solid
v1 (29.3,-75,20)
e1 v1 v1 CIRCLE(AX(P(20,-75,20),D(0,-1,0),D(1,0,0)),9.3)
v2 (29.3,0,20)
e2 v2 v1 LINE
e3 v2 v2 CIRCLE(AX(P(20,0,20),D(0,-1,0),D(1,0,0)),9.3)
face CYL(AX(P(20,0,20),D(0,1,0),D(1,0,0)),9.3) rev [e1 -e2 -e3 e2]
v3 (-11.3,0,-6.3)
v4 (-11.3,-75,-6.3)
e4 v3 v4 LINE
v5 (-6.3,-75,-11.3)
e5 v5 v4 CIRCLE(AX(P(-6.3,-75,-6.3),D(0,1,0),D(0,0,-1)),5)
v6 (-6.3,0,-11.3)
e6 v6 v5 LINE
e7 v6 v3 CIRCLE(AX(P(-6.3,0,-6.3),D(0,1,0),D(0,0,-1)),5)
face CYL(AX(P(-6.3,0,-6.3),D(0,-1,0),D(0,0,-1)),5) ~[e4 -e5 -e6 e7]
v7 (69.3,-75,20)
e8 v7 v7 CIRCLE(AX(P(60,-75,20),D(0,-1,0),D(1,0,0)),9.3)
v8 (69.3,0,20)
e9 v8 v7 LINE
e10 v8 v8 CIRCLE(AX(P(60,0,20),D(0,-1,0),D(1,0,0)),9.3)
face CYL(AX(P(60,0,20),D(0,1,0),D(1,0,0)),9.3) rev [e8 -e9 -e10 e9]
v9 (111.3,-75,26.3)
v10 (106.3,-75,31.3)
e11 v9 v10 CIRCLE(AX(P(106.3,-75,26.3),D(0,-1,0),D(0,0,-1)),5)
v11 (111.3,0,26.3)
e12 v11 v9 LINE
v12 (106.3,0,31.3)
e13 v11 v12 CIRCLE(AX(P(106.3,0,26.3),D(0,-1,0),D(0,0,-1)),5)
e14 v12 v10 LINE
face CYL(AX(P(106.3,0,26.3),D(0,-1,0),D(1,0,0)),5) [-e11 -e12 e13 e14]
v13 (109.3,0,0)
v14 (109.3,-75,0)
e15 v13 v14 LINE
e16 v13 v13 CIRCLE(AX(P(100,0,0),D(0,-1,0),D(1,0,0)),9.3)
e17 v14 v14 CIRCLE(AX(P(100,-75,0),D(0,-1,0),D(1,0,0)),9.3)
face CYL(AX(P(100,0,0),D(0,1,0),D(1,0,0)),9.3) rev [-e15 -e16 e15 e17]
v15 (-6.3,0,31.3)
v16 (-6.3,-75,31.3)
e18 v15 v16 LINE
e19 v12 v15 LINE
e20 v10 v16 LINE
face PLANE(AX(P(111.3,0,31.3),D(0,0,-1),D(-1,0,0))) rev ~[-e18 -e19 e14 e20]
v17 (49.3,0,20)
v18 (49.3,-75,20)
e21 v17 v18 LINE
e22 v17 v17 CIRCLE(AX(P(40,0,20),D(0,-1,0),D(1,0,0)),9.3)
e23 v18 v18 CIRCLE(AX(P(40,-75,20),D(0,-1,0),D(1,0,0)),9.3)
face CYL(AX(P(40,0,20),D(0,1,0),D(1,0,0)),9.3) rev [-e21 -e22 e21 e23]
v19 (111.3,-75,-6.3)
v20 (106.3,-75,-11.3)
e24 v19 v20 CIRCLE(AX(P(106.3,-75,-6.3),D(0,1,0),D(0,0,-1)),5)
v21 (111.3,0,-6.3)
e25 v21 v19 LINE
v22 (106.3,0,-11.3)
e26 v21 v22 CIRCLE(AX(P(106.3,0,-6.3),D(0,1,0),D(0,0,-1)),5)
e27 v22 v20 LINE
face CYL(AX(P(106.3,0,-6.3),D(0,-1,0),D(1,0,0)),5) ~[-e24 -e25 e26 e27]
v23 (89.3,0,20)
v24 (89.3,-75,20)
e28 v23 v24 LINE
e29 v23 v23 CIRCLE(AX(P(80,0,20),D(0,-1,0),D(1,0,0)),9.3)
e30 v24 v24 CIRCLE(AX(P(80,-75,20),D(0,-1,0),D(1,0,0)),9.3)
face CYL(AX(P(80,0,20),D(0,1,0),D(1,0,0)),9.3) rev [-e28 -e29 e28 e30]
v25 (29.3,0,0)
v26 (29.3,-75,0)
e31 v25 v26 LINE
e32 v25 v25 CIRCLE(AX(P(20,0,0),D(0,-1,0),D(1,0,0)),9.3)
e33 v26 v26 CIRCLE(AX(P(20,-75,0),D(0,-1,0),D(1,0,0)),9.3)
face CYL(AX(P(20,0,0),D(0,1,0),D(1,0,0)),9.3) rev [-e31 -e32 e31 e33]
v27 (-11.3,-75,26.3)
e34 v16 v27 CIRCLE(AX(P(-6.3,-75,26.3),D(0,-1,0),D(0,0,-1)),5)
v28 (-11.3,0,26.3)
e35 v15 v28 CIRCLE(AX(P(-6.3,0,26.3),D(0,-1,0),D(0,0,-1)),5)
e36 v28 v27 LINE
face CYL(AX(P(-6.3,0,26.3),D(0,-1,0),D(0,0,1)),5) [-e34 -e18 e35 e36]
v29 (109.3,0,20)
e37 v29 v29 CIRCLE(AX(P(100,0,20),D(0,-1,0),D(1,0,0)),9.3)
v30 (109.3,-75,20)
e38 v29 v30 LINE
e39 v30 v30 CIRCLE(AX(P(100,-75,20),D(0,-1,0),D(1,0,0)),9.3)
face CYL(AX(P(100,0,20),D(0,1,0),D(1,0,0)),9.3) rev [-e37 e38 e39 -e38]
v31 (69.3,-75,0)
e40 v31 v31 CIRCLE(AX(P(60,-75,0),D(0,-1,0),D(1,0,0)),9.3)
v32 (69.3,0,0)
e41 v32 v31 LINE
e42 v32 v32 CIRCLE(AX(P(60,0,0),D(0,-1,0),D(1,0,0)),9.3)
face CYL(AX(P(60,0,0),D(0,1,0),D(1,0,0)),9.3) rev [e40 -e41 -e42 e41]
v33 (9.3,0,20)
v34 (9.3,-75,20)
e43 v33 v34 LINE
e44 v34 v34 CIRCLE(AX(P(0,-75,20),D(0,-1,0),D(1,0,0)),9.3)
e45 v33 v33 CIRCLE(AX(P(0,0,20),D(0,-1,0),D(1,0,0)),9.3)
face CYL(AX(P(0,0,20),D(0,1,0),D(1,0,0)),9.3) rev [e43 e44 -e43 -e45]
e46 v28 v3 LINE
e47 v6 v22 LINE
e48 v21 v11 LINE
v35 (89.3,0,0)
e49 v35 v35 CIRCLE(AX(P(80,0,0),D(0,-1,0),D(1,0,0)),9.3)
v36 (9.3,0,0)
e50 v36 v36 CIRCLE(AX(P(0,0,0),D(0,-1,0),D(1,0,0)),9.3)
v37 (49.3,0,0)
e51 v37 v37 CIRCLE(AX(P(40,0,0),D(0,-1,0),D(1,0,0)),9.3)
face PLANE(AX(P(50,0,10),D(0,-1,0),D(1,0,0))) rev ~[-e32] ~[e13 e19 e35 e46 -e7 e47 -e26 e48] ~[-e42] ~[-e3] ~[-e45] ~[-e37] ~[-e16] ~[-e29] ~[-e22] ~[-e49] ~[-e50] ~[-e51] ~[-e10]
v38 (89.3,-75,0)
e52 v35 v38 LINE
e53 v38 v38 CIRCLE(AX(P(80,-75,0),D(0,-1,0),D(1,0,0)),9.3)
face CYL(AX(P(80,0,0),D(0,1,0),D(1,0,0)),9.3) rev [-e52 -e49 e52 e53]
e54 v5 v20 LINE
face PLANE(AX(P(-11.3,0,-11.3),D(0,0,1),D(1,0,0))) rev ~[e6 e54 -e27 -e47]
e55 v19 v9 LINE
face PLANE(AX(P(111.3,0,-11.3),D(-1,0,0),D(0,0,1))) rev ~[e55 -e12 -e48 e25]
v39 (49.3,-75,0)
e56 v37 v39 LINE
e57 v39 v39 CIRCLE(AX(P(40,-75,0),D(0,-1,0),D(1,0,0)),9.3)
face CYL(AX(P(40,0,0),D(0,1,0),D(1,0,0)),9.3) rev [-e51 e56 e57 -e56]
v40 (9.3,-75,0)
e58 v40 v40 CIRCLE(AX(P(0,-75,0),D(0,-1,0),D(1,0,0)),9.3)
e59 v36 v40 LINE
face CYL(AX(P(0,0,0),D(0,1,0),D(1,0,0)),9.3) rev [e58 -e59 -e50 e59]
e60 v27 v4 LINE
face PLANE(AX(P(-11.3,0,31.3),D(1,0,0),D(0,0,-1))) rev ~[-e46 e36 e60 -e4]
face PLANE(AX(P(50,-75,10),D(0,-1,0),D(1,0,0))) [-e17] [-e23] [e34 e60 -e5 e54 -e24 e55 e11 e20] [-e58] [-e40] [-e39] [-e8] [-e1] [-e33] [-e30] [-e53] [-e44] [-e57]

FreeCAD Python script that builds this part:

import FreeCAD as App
import Part
import Sketcher
from FreeCAD import Vector


def edges_at(feature, points):
    """Names of the edges that pass closest to the given points."""
    edges = feature.Shape.Edges
    near = lambda p: min(range(len(edges)), key=lambda i: edges[i].distToShape(Part.Vertex(*p))[0])
    return sorted({f"Edge{near(p) + 1}" for p in points})

doc = App.newDocument("Part")
params = doc.addObject("Spreadsheet::Sheet", "Params")
for row, (alias, value) in enumerate([
    ("sketch1_diameter", "18.6 mm"),
    ("sketch1_width", "122.6 mm"),
    ("sketch1_height", "42.6 mm"),
    ("pad1_length", "75 mm"),
    ("fillet_radius", "5 mm"),
], start=1):
    params.set(f"A{row}", alias)
    params.set(f"B{row}", "=" + value)
    params.setAlias(f"B{row}", alias)

body = doc.addObject("PartDesign::Body", "Body")

sketch1 = doc.addObject("Sketcher::SketchObject", "Sketch")
body.addObject(sketch1)
sketch1.AttachmentSupport = (doc.XZ_Plane, [""])
sketch1.MapMode = "FlatFace"
sketch1.addGeometry(Part.LineSegment(Vector(111, -11, 0), Vector(111, 31, 0)), False)
sketch1.addGeometry(Part.LineSegment(Vector(111, 31, 0), Vector(-11, 31, 0)), False)
sketch1.addGeometry(Part.LineSegment(Vector(-11, 31, 0), Vector(-11, -11, 0)), False)
sketch1.addGeometry(Part.LineSegment(Vector(-11, -11, 0), Vector(111, -11, 0)), False)
sketch1.addGeometry(Part.Circle(Vector(0, 0, 0), Vector(0, 0, 1), 9), False)
sketch1.addGeometry(Part.Circle(Vector(20, 0, 0), Vector(0, 0, 1), 9), False)
sketch1.addGeometry(Part.Circle(Vector(40, 0, 0), Vector(0, 0, 1), 9), False)
sketch1.addGeometry(Part.Circle(Vector(60, 0, 0), Vector(0, 0, 1), 9), False)
sketch1.addGeometry(Part.Circle(Vector(80, 0, 0), Vector(0, 0, 1), 9), False)
sketch1.addGeometry(Part.Circle(Vector(100, 0, 0), Vector(0, 0, 1), 9), False)
sketch1.addGeometry(Part.Circle(Vector(0, 20, 0), Vector(0, 0, 1), 9), False)
sketch1.addGeometry(Part.Circle(Vector(20, 20, 0), Vector(0, 0, 1), 9), False)
sketch1.addGeometry(Part.Circle(Vector(40, 20, 0), Vector(0, 0, 1), 9), False)
sketch1.addGeometry(Part.Circle(Vector(60, 20, 0), Vector(0, 0, 1), 9), False)
sketch1.addGeometry(Part.Circle(Vector(80, 20, 0), Vector(0, 0, 1), 9), False)
sketch1.addGeometry(Part.Circle(Vector(100, 20, 0), Vector(0, 0, 1), 9), False)
sketch1.addConstraint(Sketcher.Constraint("Coincident", 0, 2, 1, 1))
sketch1.addConstraint(Sketcher.Constraint("Coincident", 1, 2, 2, 1))
sketch1.addConstraint(Sketcher.Constraint("Coincident", 2, 2, 3, 1))
sketch1.addConstraint(Sketcher.Constraint("Coincident", 3, 2, 0, 1))
sketch1.addConstraint(Sketcher.Constraint("Vertical", 0))
sketch1.addConstraint(Sketcher.Constraint("Horizontal", 1))
sketch1.addConstraint(Sketcher.Constraint("Vertical", 2))
sketch1.addConstraint(Sketcher.Constraint("Horizontal", 3))
sketch1.addConstraint(Sketcher.Constraint("Coincident", 4, 3, -1, 1))
sketch1.addConstraint(Sketcher.Constraint("Equal", 4, 5))
sketch1.addConstraint(Sketcher.Constraint("Equal", 5, 6))
sketch1.addConstraint(Sketcher.Constraint("Equal", 6, 7))
sketch1.addConstraint(Sketcher.Constraint("Equal", 7, 8))
sketch1.addConstraint(Sketcher.Constraint("Equal", 8, 9))
sketch1.addConstraint(Sketcher.Constraint("Equal", 9, 10))
sketch1.addConstraint(Sketcher.Constraint("Equal", 10, 11))
sketch1.addConstraint(Sketcher.Constraint("Equal", 11, 12))
sketch1.addConstraint(Sketcher.Constraint("Equal", 12, 13))
sketch1.addConstraint(Sketcher.Constraint("Equal", 13, 14))
sketch1.addConstraint(Sketcher.Constraint("Equal", 14, 15))
sketch1.addConstraint(Sketcher.Constraint("PointOnObject", 5, 3, -1))
sketch1.addConstraint(Sketcher.Constraint("PointOnObject", 6, 3, -1))
sketch1.addConstraint(Sketcher.Constraint("PointOnObject", 7, 3, -1))
sketch1.addConstraint(Sketcher.Constraint("PointOnObject", 8, 3, -1))
sketch1.addConstraint(Sketcher.Constraint("PointOnObject", 9, 3, -1))
sketch1.addConstraint(Sketcher.Constraint("PointOnObject", 10, 3, -2))
sketch1.addConstraint(Sketcher.Constraint("Horizontal", 10, 3, 11, 3))
sketch1.addConstraint(Sketcher.Constraint("Horizontal", 11, 3, 12, 3))
sketch1.addConstraint(Sketcher.Constraint("Horizontal", 12, 3, 13, 3))
sketch1.addConstraint(Sketcher.Constraint("Horizontal", 13, 3, 14, 3))
sketch1.addConstraint(Sketcher.Constraint("Horizontal", 14, 3, 15, 3))
sketch1.addConstraint(Sketcher.Constraint("Vertical", 5, 3, 11, 3))
sketch1.addConstraint(Sketcher.Constraint("Vertical", 6, 3, 12, 3))
sketch1.addConstraint(Sketcher.Constraint("Vertical", 7, 3, 13, 3))
sketch1.addConstraint(Sketcher.Constraint("Vertical", 8, 3, 14, 3))
sketch1.addConstraint(Sketcher.Constraint("Vertical", 9, 3, 15, 3))
sketch1.addConstraint(Sketcher.Constraint("Diameter", 4, 18.6))
sketch1.addConstraint(Sketcher.Constraint("DistanceX", 1, 2, 1, 1, 122.6))
sketch1.addConstraint(Sketcher.Constraint("DistanceY", 0, 1, 0, 2, 42.6))
sketch1.addConstraint(Sketcher.Constraint("DistanceX", -1, 1, 5, 3, 20.0))
sketch1.addConstraint(Sketcher.Constraint("DistanceX", -1, 1, 6, 3, 40.0))
sketch1.addConstraint(Sketcher.Constraint("DistanceX", -1, 1, 7, 3, 60.0))
sketch1.addConstraint(Sketcher.Constraint("DistanceX", -1, 1, 8, 3, 80.0))
sketch1.addConstraint(Sketcher.Constraint("DistanceX", -1, 1, 9, 3, 100.0))
sketch1.addConstraint(Sketcher.Constraint("DistanceY", -1, 1, 10, 3, 20.0))
sketch1.addConstraint(Sketcher.Constraint("DistanceX", -1, 1, 0, 2, 111.3))
sketch1.addConstraint(Sketcher.Constraint("DistanceY", -1, 1, 0, 2, 31.3))
sketch1.setExpression("Constraints[36]", "Params.sketch1_diameter")
sketch1.setExpression("Constraints[37]", "Params.sketch1_width")
sketch1.setExpression("Constraints[38]", "Params.sketch1_height")
pad1 = doc.addObject("PartDesign::Pad", "Pad")
body.addObject(pad1)
pad1.Profile = sketch1
pad1.setExpression("Length", "Params.pad1_length")
doc.recompute()

fillet = doc.addObject("PartDesign::Fillet", "Fillet")
body.addObject(fillet)
fillet.Base = (pad1, edges_at(pad1, [
    (111.3, -37.5, 31.3),
    (111.3, -37.5, -11.3),
    (-11.3, -37.5, 31.3),
    (-11.3, -37.5, -11.3),
]))
fillet.setExpression("Radius", "Params.fillet_radius")

doc.recompute()
